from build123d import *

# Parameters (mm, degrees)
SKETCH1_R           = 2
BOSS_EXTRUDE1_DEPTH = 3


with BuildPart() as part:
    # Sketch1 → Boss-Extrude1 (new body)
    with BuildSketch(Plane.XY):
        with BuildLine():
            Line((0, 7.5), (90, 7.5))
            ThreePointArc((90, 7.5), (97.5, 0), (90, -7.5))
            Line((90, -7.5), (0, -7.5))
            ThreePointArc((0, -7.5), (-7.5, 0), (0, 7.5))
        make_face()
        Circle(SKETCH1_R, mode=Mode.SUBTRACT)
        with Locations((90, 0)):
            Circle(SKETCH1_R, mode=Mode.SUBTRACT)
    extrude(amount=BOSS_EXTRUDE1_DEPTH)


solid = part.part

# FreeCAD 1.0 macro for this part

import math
import FreeCAD as App
import Part
import Sketcher
from FreeCAD import Vector
Q = App.Units.Quantity

doc = App.newDocument("Part")
body = doc.addObject("PartDesign::Body", "Body")

# Sketch on XY plane
sketch1 = body.newObject("Sketcher::SketchObject", "Sketch")
sketch1.AttachmentSupport = (doc.getObject("XY_Plane"), [""])
sketch1.MapMode = "FlatFace"
sketch1.addGeometry([
    Part.LineSegment(Vector(90, 7.5, 0), Vector(0, 7.5, 0)),  # 0
    Part.ArcOfCircle(Part.Circle(Vector(0, 0, 0), Vector(0, 0, 1), 7.5), math.radians(90), math.radians(270)),  # 1
    Part.LineSegment(Vector(0, -7.5, 0), Vector(90, -7.5, 0)),  # 2
    Part.ArcOfCircle(Part.Circle(Vector(90, 0, 0), Vector(0, 0, 1), 7.5), math.radians(-90), math.radians(90)),  # 3
    Part.Circle(Vector(90, 0, 0), Vector(0, 0, 1), 2),  # 4
    Part.Circle(Vector(0, 0, 0), Vector(0, 0, 1), 2),  # 5
], False)
sketch1.addConstraint([
    Sketcher.Constraint("Tangent", 0, 2, 1, 1),
    Sketcher.Constraint("Tangent", 1, 2, 2, 1),
    Sketcher.Constraint("Tangent", 2, 2, 3, 1),
    Sketcher.Constraint("Tangent", 3, 2, 0, 1),
    Sketcher.Constraint("Horizontal", 0),
    Sketcher.Constraint("Horizontal", 2),
    Sketcher.Constraint("Coincident", 1, 3, -1, 1),
    Sketcher.Constraint("Coincident", 5, 3, -1, 1),
    Sketcher.Constraint("Coincident", 4, 3, 3, 3),
    Sketcher.Constraint("Equal", 4, 5),
    Sketcher.Constraint("Diameter", 4, Q("4 mm")),
    Sketcher.Constraint("Radius", 1, Q("7.5 mm")),
    Sketcher.Constraint("DistanceX", 0, 2, 0, 1, Q("90 mm")),
])
pad1 = body.newObject("PartDesign::Pad", "Pad")
pad1.Profile = sketch1
pad1.Length = 3

doc.recompute()
